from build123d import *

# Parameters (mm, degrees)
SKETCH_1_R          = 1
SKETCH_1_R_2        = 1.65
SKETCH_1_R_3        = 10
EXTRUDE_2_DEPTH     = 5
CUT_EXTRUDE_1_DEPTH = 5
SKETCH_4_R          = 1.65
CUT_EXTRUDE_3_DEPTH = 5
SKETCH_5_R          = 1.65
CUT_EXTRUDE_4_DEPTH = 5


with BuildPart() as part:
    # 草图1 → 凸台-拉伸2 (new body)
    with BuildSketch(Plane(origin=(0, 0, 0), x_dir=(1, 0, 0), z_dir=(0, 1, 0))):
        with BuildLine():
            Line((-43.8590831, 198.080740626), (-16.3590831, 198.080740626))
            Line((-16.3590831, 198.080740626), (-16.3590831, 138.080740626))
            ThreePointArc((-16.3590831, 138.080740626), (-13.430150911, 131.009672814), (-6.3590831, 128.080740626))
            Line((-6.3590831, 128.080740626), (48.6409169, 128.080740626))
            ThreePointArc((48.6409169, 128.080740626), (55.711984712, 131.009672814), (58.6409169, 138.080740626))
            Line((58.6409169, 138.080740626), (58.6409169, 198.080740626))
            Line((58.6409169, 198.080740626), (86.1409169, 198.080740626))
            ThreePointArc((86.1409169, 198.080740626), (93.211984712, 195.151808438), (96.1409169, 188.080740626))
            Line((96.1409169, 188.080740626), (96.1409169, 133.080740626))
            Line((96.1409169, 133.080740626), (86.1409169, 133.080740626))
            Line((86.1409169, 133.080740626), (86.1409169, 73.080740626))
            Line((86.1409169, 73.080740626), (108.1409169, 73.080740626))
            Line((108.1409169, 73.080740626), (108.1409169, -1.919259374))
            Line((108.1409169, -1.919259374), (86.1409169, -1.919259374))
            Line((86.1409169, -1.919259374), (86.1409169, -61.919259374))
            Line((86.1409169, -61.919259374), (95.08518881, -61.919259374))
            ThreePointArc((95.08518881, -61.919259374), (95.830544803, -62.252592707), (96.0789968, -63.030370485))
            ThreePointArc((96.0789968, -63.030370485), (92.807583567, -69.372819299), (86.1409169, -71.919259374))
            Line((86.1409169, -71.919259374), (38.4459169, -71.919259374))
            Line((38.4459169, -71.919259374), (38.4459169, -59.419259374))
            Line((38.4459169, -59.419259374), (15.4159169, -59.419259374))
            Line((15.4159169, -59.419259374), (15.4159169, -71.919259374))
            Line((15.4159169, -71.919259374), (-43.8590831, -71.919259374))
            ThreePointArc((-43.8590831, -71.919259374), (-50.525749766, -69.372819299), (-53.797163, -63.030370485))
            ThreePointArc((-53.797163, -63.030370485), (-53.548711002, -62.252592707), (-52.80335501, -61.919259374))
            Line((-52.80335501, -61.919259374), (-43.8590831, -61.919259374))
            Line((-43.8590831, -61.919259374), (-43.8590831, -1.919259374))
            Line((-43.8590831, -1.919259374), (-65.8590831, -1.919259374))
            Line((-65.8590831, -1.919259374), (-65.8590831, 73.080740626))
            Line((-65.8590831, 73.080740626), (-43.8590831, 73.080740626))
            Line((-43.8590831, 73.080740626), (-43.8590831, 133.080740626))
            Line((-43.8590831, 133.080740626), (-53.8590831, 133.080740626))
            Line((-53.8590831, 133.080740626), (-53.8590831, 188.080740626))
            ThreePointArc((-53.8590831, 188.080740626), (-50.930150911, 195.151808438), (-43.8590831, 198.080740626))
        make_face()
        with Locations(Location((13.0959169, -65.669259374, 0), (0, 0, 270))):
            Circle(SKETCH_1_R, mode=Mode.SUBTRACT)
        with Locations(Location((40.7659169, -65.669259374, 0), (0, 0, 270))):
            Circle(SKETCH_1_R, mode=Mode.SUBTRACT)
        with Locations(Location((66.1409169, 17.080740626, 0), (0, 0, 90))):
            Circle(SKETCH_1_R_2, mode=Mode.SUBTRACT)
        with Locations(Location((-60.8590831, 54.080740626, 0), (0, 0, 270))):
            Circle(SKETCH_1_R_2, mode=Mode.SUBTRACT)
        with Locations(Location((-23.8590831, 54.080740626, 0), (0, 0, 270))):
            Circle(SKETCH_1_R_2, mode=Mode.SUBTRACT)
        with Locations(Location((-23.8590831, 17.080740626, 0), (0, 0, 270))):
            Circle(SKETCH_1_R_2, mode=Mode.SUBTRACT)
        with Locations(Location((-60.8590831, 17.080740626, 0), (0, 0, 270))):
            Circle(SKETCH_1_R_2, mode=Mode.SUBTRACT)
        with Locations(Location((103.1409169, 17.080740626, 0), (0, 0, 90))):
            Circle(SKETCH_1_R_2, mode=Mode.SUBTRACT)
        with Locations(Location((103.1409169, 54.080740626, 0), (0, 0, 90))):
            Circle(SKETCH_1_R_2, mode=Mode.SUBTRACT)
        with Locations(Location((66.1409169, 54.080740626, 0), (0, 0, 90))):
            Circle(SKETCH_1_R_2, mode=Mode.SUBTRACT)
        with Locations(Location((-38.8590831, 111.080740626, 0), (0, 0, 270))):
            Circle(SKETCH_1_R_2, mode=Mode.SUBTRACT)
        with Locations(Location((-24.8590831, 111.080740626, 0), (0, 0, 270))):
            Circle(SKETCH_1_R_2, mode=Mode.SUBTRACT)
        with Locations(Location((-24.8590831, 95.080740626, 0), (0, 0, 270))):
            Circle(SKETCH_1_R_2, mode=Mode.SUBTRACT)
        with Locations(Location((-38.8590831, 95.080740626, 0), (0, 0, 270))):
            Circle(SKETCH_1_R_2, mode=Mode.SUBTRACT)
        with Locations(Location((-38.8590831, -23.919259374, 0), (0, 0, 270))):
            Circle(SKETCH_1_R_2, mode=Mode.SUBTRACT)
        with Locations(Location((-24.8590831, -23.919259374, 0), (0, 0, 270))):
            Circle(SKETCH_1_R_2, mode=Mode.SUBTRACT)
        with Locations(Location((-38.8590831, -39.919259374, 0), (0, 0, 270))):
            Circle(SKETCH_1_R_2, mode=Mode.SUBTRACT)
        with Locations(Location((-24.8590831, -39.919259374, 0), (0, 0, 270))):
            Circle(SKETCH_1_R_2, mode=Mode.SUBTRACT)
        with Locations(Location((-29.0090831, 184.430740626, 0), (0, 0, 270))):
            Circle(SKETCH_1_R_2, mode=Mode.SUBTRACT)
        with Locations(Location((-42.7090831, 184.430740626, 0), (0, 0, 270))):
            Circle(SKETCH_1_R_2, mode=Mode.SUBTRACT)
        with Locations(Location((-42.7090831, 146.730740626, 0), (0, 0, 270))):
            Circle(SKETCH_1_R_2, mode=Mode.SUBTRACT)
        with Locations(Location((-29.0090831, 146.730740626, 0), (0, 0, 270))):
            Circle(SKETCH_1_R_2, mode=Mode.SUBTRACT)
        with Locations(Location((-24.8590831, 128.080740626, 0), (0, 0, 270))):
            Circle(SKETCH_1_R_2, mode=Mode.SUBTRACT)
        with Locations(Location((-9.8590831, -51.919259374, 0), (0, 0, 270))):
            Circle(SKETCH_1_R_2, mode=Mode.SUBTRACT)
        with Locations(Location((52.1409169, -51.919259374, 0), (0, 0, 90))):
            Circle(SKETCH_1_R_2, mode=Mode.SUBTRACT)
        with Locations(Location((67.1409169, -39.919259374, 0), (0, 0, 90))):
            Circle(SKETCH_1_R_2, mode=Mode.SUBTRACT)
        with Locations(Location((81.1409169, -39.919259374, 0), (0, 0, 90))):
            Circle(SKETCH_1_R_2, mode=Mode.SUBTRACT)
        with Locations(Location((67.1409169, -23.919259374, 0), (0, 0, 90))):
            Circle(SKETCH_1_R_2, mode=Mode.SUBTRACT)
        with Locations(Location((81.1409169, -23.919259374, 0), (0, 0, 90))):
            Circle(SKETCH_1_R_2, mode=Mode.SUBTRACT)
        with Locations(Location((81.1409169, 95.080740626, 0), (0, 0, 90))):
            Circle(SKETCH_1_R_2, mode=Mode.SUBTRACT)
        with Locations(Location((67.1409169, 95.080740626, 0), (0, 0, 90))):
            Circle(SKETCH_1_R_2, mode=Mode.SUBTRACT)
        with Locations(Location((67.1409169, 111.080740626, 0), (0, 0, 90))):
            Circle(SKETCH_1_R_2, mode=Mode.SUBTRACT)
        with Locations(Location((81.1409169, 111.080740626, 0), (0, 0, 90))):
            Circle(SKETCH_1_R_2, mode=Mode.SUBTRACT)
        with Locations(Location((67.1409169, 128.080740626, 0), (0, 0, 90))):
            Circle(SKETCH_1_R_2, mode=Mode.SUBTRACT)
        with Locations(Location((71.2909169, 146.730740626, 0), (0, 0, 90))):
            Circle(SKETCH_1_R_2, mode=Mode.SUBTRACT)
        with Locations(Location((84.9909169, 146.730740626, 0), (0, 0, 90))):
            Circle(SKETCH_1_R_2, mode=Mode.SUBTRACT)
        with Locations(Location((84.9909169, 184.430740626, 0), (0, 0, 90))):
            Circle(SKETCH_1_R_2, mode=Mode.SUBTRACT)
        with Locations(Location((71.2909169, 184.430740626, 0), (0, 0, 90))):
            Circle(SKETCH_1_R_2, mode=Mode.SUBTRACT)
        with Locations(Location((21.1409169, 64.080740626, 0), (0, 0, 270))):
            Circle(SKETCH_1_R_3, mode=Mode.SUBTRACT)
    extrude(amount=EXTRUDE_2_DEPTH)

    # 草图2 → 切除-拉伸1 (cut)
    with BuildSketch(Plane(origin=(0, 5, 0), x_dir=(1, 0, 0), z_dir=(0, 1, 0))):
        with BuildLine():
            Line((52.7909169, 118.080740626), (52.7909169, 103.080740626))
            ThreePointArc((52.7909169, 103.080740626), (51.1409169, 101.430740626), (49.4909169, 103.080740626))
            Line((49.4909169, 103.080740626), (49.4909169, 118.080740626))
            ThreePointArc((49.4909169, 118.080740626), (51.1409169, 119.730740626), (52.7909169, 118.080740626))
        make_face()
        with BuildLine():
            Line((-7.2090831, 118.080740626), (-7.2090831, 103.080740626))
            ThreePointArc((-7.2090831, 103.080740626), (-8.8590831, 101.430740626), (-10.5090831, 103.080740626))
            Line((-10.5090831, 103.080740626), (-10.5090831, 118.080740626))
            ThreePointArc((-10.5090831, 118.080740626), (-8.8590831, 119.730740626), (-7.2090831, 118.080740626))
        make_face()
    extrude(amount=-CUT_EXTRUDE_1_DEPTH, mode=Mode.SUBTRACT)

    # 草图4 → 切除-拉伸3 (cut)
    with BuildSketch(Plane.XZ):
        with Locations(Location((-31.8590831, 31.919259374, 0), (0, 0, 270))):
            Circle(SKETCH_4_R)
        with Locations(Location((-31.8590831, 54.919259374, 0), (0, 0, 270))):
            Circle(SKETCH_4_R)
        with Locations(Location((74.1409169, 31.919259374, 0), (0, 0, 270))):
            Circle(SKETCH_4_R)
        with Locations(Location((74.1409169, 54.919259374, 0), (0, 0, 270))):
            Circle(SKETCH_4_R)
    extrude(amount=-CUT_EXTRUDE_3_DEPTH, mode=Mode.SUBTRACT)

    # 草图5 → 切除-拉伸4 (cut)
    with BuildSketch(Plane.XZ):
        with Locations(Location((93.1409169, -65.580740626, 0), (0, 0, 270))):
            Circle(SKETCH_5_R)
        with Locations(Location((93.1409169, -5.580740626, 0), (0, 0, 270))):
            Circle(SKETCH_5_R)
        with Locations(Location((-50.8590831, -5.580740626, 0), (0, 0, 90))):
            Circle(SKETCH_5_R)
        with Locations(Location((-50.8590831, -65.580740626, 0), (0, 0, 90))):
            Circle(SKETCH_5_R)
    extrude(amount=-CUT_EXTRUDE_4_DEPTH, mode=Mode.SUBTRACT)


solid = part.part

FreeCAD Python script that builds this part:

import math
import FreeCAD as App
import Part
import Sketcher
from FreeCAD import Vector

doc = App.newDocument("Part")
body = doc.addObject("PartDesign::Body", "Body")

# Sketch on XZ plane
sketch1 = body.newObject("Sketcher::SketchObject", "Sketch")
sketch1.AttachmentSupport = (doc.getObject("XZ_Plane"), [""])
sketch1.MapMode = "FlatFace"
sketch1.addGeometry([
    Part.LineSegment(Vector(-16.4, -198.1, 0), Vector(-43.9, -198.1, 0)),  # 0
    Part.ArcOfCircle(Part.Circle(Vector(-43.9, -188.1, 0), Vector(0, 0, 1), 10), math.radians(-180), math.radians(-90)),  # 1
    Part.LineSegment(Vector(-53.9, -188.1, 0), Vector(-53.9, -133.1, 0)),  # 2
    Part.LineSegment(Vector(-53.9, -133.1, 0), Vector(-43.9, -133.1, 0)),  # 3
    Part.LineSegment(Vector(-43.9, -133.1, 0), Vector(-43.9, -73.1, 0)),  # 4
    Part.LineSegment(Vector(-43.9, -73.1, 0), Vector(-65.9, -73.1, 0)),  # 5
    Part.LineSegment(Vector(-65.9, -73.1, 0), Vector(-65.9, 1.9, 0)),  # 6
    Part.LineSegment(Vector(-65.9, 1.9, 0), Vector(-43.9, 1.9, 0)),  # 7
    Part.LineSegment(Vector(-43.9, 1.9, 0), Vector(-43.9, 61.9, 0)),  # 8
    Part.LineSegment(Vector(-43.9, 61.9, 0), Vector(-52.8, 61.9, 0)),  # 9
    Part.ArcOfCircle(Part.Circle(Vector(-52.8, 62.9, 0), Vector(0, 0, 1), 1), math.radians(174), math.radians(270)),  # 10
    Part.ArcOfCircle(Part.Circle(Vector(-43.9, 61.9, 0), Vector(0, 0, 1), 10), math.radians(90), math.radians(174)),  # 11
    Part.LineSegment(Vector(-43.9, 71.9, 0), Vector(15.4, 71.9, 0)),  # 12
    Part.LineSegment(Vector(15.4, 71.9, 0), Vector(15.4, 59.4, 0)),  # 13
    Part.LineSegment(Vector(15.4, 59.4, 0), Vector(38.4, 59.4, 0)),  # 14
    Part.LineSegment(Vector(38.4, 59.4, 0), Vector(38.4, 71.9, 0)),  # 15
    Part.LineSegment(Vector(38.4, 71.9, 0), Vector(86.1, 71.9, 0)),  # 16
    Part.ArcOfCircle(Part.Circle(Vector(86.1, 61.9, 0), Vector(0, 0, 1), 10), math.radians(6), math.radians(90)),  # 17
    Part.ArcOfCircle(Part.Circle(Vector(95.1, 62.9, 0), Vector(0, 0, 1), 1), math.radians(-90), math.radians(6)),  # 18
    Part.LineSegment(Vector(95.1, 61.9, 0), Vector(86.1, 61.9, 0)),  # 19
    Part.LineSegment(Vector(86.1, 61.9, 0), Vector(86.1, 1.9, 0)),  # 20
    Part.LineSegment(Vector(86.1, 1.9, 0), Vector(108.1, 1.9, 0)),  # 21
    Part.LineSegment(Vector(108.1, 1.9, 0), Vector(108.1, -73.1, 0)),  # 22
    Part.LineSegment(Vector(108.1, -73.1, 0), Vector(86.1, -73.1, 0)),  # 23
    Part.LineSegment(Vector(86.1, -73.1, 0), Vector(86.1, -133.1, 0)),  # 24
    Part.LineSegment(Vector(86.1, -133.1, 0), Vector(96.1, -133.1, 0)),  # 25
    Part.LineSegment(Vector(96.1, -133.1, 0), Vector(96.1, -188.1, 0)),  # 26
    Part.ArcOfCircle(Part.Circle(Vector(86.1, -188.1, 0), Vector(0, 0, 1), 10), math.radians(-90), math.radians(0)),  # 27
    Part.LineSegment(Vector(86.1, -198.1, 0), Vector(58.6, -198.1, 0)),  # 28
    Part.LineSegment(Vector(58.6, -198.1, 0), Vector(58.6, -138.1, 0)),  # 29
    Part.ArcOfCircle(Part.Circle(Vector(48.6, -138.1, 0), Vector(0, 0, 1), 10), math.radians(0), math.radians(90)),  # 30
    Part.LineSegment(Vector(48.6, -128.1, 0), Vector(-6.4, -128.1, 0)),  # 31
    Part.ArcOfCircle(Part.Circle(Vector(-6.4, -138.1, 0), Vector(0, 0, 1), 10), math.radians(90), math.radians(180)),  # 32
    Part.LineSegment(Vector(-16.4, -138.1, 0), Vector(-16.4, -198.1, 0)),  # 33
    Part.Circle(Vector(81.1, 39.9, 0), Vector(0, 0, 1), 1.6),  # 34
    Part.Circle(Vector(67.1, 39.9, 0), Vector(0, 0, 1), 1.6),  # 35
    Part.Circle(Vector(81.1, 23.9, 0), Vector(0, 0, 1), 1.6),  # 36
    Part.Circle(Vector(67.1, 23.9, 0), Vector(0, 0, 1), 1.6),  # 37
    Part.Circle(Vector(52.1, 51.9, 0), Vector(0, 0, 1), 1.6),  # 38
    Part.Circle(Vector(40.8, 65.7, 0), Vector(0, 0, 1), 1),  # 39
    Part.Circle(Vector(103.1, -17.1, 0), Vector(0, 0, 1), 1.6),  # 40
    Part.Circle(Vector(66.1, -17.1, 0), Vector(0, 0, 1), 1.6),  # 41
    Part.Circle(Vector(103.1, -54.1, 0), Vector(0, 0, 1), 1.6),  # 42
    Part.Circle(Vector(66.1, -54.1, 0), Vector(0, 0, 1), 1.6),  # 43
    Part.Circle(Vector(13.1, 65.7, 0), Vector(0, 0, 1), 1),  # 44
    Part.Circle(Vector(-9.9, 51.9, 0), Vector(0, 0, 1), 1.6),  # 45
    Part.Circle(Vector(-24.9, 39.9, 0), Vector(0, 0, 1), 1.6),  # 46
    Part.Circle(Vector(-38.9, 39.9, 0), Vector(0, 0, 1), 1.6),  # 47
    Part.Circle(Vector(-24.9, 23.9, 0), Vector(0, 0, 1), 1.6),  # 48
    Part.Circle(Vector(-38.9, 23.9, 0), Vector(0, 0, 1), 1.6),  # 49
    Part.Circle(Vector(-23.9, -17.1, 0), Vector(0, 0, 1), 1.6),  # 50
    Part.Circle(Vector(-60.9, -17.1, 0), Vector(0, 0, 1), 1.6),  # 51
    Part.Circle(Vector(-23.9, -54.1, 0), Vector(0, 0, 1), 1.6),  # 52
    Part.Circle(Vector(-60.9, -54.1, 0), Vector(0, 0, 1), 1.6),  # 53
    Part.Circle(Vector(81.1, -95.1, 0), Vector(0, 0, 1), 1.6),  # 54
    Part.Circle(Vector(67.1, -95.1, 0), Vector(0, 0, 1), 1.6),  # 55
    Part.Circle(Vector(81.1, -111.1, 0), Vector(0, 0, 1), 1.6),  # 56
    Part.Circle(Vector(67.1, -111.1, 0), Vector(0, 0, 1), 1.6),  # 57
    Part.Circle(Vector(21.1, -64.1, 0), Vector(0, 0, 1), 10),  # 58
    Part.Circle(Vector(85, -146.7, 0), Vector(0, 0, 1), 1.6),  # 59
    Part.Circle(Vector(67.1, -128.1, 0), Vector(0, 0, 1), 1.6),  # 60
    Part.Circle(Vector(71.3, -146.7, 0), Vector(0, 0, 1), 1.6),  # 61
    Part.Circle(Vector(85, -184.4, 0), Vector(0, 0, 1), 1.6),  # 62
    Part.Circle(Vector(71.3, -184.4, 0), Vector(0, 0, 1), 1.6),  # 63
    Part.Circle(Vector(-24.9, -95.1, 0), Vector(0, 0, 1), 1.6),  # 64
    Part.Circle(Vector(-38.9, -95.1, 0), Vector(0, 0, 1), 1.6),  # 65
    Part.Circle(Vector(-24.9, -111.1, 0), Vector(0, 0, 1), 1.6),  # 66
    Part.Circle(Vector(-38.9, -111.1, 0), Vector(0, 0, 1), 1.6),  # 67
    Part.Circle(Vector(-24.9, -128.1, 0), Vector(0, 0, 1), 1.6),  # 68
    Part.Circle(Vector(-29, -146.7, 0), Vector(0, 0, 1), 1.6),  # 69
    Part.Circle(Vector(-42.7, -146.7, 0), Vector(0, 0, 1), 1.6),  # 70
    Part.Circle(Vector(-29, -184.4, 0), Vector(0, 0, 1), 1.6),  # 71
    Part.Circle(Vector(-42.7, -184.4, 0), Vector(0, 0, 1), 1.6),  # 72
], False)
sketch1.addConstraint([
    Sketcher.Constraint("Tangent", 0, 2, 1, 2),
    Sketcher.Constraint("Tangent", 1, 1, 2, 1),
    Sketcher.Constraint("Coincident", 2, 2, 3, 1),
    Sketcher.Constraint("Coincident", 3, 2, 4, 1),
    Sketcher.Constraint("Coincident", 4, 2, 5, 1),
    Sketcher.Constraint("Coincident", 5, 2, 6, 1),
    Sketcher.Constraint("Coincident", 6, 2, 7, 1),
    Sketcher.Constraint("Coincident", 7, 2, 8, 1),
    Sketcher.Constraint("Coincident", 8, 2, 9, 1),
    Sketcher.Constraint("Tangent", 9, 2, 10, 2),
    Sketcher.Constraint("Tangent", 10, 1, 11, 2),
    Sketcher.Constraint("Tangent", 11, 1, 12, 1),
    Sketcher.Constraint("Coincident", 12, 2, 13, 1),
    Sketcher.Constraint("Coincident", 13, 2, 14, 1),
    Sketcher.Constraint("Coincident", 14, 2, 15, 1),
    Sketcher.Constraint("Coincident", 15, 2, 16, 1),
    Sketcher.Constraint("Tangent", 16, 2, 17, 2),
    Sketcher.Constraint("Tangent", 17, 1, 18, 2),
    Sketcher.Constraint("Tangent", 18, 1, 19, 1),
    Sketcher.Constraint("Coincident", 19, 2, 20, 1),
    Sketcher.Constraint("Coincident", 20, 2, 21, 1),
    Sketcher.Constraint("Coincident", 21, 2, 22, 1),
    Sketcher.Constraint("Coincident", 22, 2, 23, 1),
    Sketcher.Constraint("Coincident", 23, 2, 24, 1),
    Sketcher.Constraint("Coincident", 24, 2, 25, 1),
    Sketcher.Constraint("Coincident", 25, 2, 26, 1),
    Sketcher.Constraint("Tangent", 26, 2, 27, 2),
    Sketcher.Constraint("Tangent", 27, 1, 28, 1),
    Sketcher.Constraint("Coincident", 28, 2, 29, 1),
    Sketcher.Constraint("Tangent", 29, 2, 30, 1),
    Sketcher.Constraint("Tangent", 30, 2, 31, 1),
    Sketcher.Constraint("Tangent", 31, 2, 32, 1),
    Sketcher.Constraint("Tangent", 32, 2, 33, 1),
    Sketcher.Constraint("Coincident", 33, 2, 0, 1),
    Sketcher.Constraint("Horizontal", 0),
    Sketcher.Constraint("Vertical", 2),
    Sketcher.Constraint("Horizontal", 3),
    Sketcher.Constraint("Vertical", 4),
    Sketcher.Constraint("Horizontal", 5),
    Sketcher.Constraint("Vertical", 6),
    Sketcher.Constraint("Horizontal", 7),
    Sketcher.Constraint("Vertical", 8),
    Sketcher.Constraint("Horizontal", 9),
    Sketcher.Constraint("Horizontal", 12),
    Sketcher.Constraint("Vertical", 13),
    Sketcher.Constraint("Horizontal", 14),
    Sketcher.Constraint("Vertical", 15),
    Sketcher.Constraint("Horizontal", 16),
    Sketcher.Constraint("Horizontal", 19),
    Sketcher.Constraint("Vertical", 20),
    Sketcher.Constraint("Horizontal", 21),
    Sketcher.Constraint("Vertical", 22),
    Sketcher.Constraint("Horizontal", 23),
    Sketcher.Constraint("Vertical", 24),
    Sketcher.Constraint("Horizontal", 25),
    Sketcher.Constraint("Vertical", 26),
    Sketcher.Constraint("Horizontal", 28),
    Sketcher.Constraint("Vertical", 29),
    Sketcher.Constraint("Horizontal", 31),
    Sketcher.Constraint("Vertical", 33),
    Sketcher.Constraint("Coincident", 8, 2, 11, 3),
    Sketcher.Constraint("Coincident", 19, 2, 17, 3),
    Sketcher.Constraint("Equal", 1, 11),
    Sketcher.Constraint("Equal", 11, 17),
    Sketcher.Constraint("Equal", 10, 18),
    Sketcher.Constraint("Equal", 17, 27),
    Sketcher.Constraint("Equal", 27, 30),
    Sketcher.Constraint("Equal", 30, 32),
    Sketcher.Constraint("Equal", 34, 35),
    Sketcher.Constraint("Equal", 35, 36),
    Sketcher.Constraint("Equal", 36, 37),
    Sketcher.Constraint("Equal", 37, 38),
    Sketcher.Constraint("Equal", 18, 39),
    Sketcher.Constraint("Equal", 38, 40),
    Sketcher.Constraint("Equal", 40, 41),
    Sketcher.Constraint("Equal", 41, 42),
    Sketcher.Constraint("Equal", 42, 43),
    Sketcher.Constraint("Equal", 39, 44),
    Sketcher.Constraint("Equal", 43, 45),
    Sketcher.Constraint("Equal", 45, 46),
    Sketcher.Constraint("Equal", 46, 47),
    Sketcher.Constraint("Equal", 47, 48),
    Sketcher.Constraint("Equal", 48, 49),
    Sketcher.Constraint("Equal", 49, 50),
    Sketcher.Constraint("Equal", 50, 51),
    Sketcher.Constraint("Equal", 51, 52),
    Sketcher.Constraint("Equal", 52, 53),
    Sketcher.Constraint("Equal", 53, 54),
    Sketcher.Constraint("Equal", 54, 55),
    Sketcher.Constraint("Equal", 55, 56),
    Sketcher.Constraint("Equal", 56, 57),
    Sketcher.Constraint("Equal", 32, 58),
    Sketcher.Constraint("Equal", 57, 59),
    Sketcher.Constraint("Equal", 59, 60),
    Sketcher.Constraint("Equal", 60, 61),
    Sketcher.Constraint("Equal", 61, 62),
    Sketcher.Constraint("Equal", 62, 63),
    Sketcher.Constraint("Equal", 63, 64),
    Sketcher.Constraint("Equal", 64, 65),
    Sketcher.Constraint("Equal", 65, 66),
    Sketcher.Constraint("Equal", 66, 67),
    Sketcher.Constraint("Equal", 67, 68),
    Sketcher.Constraint("Equal", 68, 69),
    Sketcher.Constraint("Equal", 69, 70),
    Sketcher.Constraint("Equal", 70, 71),
    Sketcher.Constraint("Equal", 71, 72),
    Sketcher.Constraint("Horizontal", 11, 3, 17, 3),
    Sketcher.Constraint("Horizontal", 1, 3, 27, 3),
    Sketcher.Constraint("Horizontal", 34, 3, 35, 3),
    Sketcher.Constraint("Horizontal", 36, 3, 37, 3),
    Sketcher.Constraint("Horizontal", 40, 3, 41, 3),
    Sketcher.Constraint("Horizontal", 42, 3, 43, 3),
    Sketcher.Constraint("Horizontal", 39, 3, 44, 3),
    Sketcher.Constraint("Horizontal", 38, 3, 45, 3),
    Sketcher.Constraint("Horizontal", 35, 3, 46, 3),
    Sketcher.Constraint("Horizontal", 46, 3, 47, 3),
    Sketcher.Constraint("Horizontal", 37, 3, 48, 3),
    Sketcher.Constraint("Horizontal", 48, 3, 49, 3),
    Sketcher.Constraint("Horizontal", 41, 3, 50, 3),
    Sketcher.Constraint("Horizontal", 50, 3, 51, 3),
    Sketcher.Constraint("Horizontal", 43, 3, 52, 3),
    Sketcher.Constraint("Horizontal", 52, 3, 53, 3),
    Sketcher.Constraint("Horizontal", 54, 3, 55, 3),
    Sketcher.Constraint("Horizontal", 56, 3, 57, 3),
    Sketcher.Constraint("Horizontal", 59, 3, 61, 3),
    Sketcher.Constraint("Horizontal", 62, 3, 63, 3),
    Sketcher.Constraint("Horizontal", 55, 3, 64, 3),
    Sketcher.Constraint("Horizontal", 64, 3, 65, 3),
    Sketcher.Constraint("Horizontal", 57, 3, 66, 3),
    Sketcher.Constraint("Horizontal", 66, 3, 67, 3),
    Sketcher.Constraint("Horizontal", 60, 3, 68, 3),
    Sketcher.Constraint("Horizontal", 61, 3, 69, 3),
    Sketcher.Constraint("Horizontal", 69, 3, 70, 3),
    Sketcher.Constraint("Horizontal", 63, 3, 71, 3),
    Sketcher.Constraint("Horizontal", 71, 3, 72, 3),
    Sketcher.Constraint("Horizontal", 7, 2, 20, 2),
    Sketcher.Constraint("Horizontal", 5, 2, 22, 2),
    Sketcher.Constraint("Horizontal", 3, 2, 24, 2),
    Sketcher.Constraint("Horizontal", 68, 3, 30, 2),
    Sketcher.Constraint("Vertical", 1, 3, 11, 3),
    Sketcher.Constraint("Vertical", 17, 3, 27, 3),
    Sketcher.Constraint("Vertical", 34, 3, 36, 3),
    Sketcher.Constraint("Vertical", 35, 3, 37, 3),
    Sketcher.Constraint("Vertical", 40, 3, 42, 3),
    Sketcher.Constraint("Vertical", 41, 3, 43, 3),
    Sketcher.Constraint("Vertical", 46, 3, 48, 3),
    Sketcher.Constraint("Vertical", 47, 3, 49, 3),
    Sketcher.Constraint("Vertical", 50, 3, 52, 3),
    Sketcher.Constraint("Vertical", 51, 3, 53, 3),
    Sketcher.Constraint("Vertical", 36, 3, 54, 3),
    Sketcher.Constraint("Vertical", 37, 3, 55, 3),
    Sketcher.Constraint("Vertical", 54, 3, 56, 3),
    Sketcher.Constraint("Vertical", 55, 3, 57, 3),
    Sketcher.Constraint("Vertical", 57, 3, 60, 3),
    Sketcher.Constraint("Vertical", 59, 3, 62, 3),
    Sketcher.Constraint("Vertical", 61, 3, 63, 3),
    Sketcher.Constraint("Vertical", 48, 3, 64, 3),
    Sketcher.Constraint("Vertical", 49, 3, 65, 3),
    Sketcher.Constraint("Vertical", 64, 3, 66, 3),
    Sketcher.Constraint("Vertical", 65, 3, 67, 3),
    Sketcher.Constraint("Vertical", 66, 3, 68, 3),
    Sketcher.Constraint("Vertical", 69, 3, 71, 3),
    Sketcher.Constraint("Vertical", 70, 3, 72, 3),
    Sketcher.Constraint("Vertical", 0, 2, 3, 2),
    Sketcher.Constraint("Vertical", 20, 2, 23, 2),
    Sketcher.Constraint("Equal", 7, 21),
    Sketcher.Constraint("Equal", 0, 28),
    Sketcher.Constraint("Equal", 31, 2),
    Sketcher.Constraint("Equal", 4, 8),
    Sketcher.Constraint("Equal", 24, 29),
    Sketcher.Constraint("Diameter", 39, 2.0),
    Sketcher.Constraint("Diameter", 58, 20.0),
    Sketcher.Constraint("Diameter", 34, 3.3),
    Sketcher.Constraint("DistanceX", 5, 2, 5, 1, 22.0),
    Sketcher.Constraint("DistanceX", 31, 2, 31, 1, 55.0),
    Sketcher.Constraint("DistanceY", 4, 1, 4, 2, 60.0),
    Sketcher.Constraint("DistanceY", 6, 1, 6, 2, 75.0),
    Sketcher.Constraint("DistanceX", 0, 2, 0, 1, 27.5),
    Sketcher.Constraint("DistanceY", 13, 2, 13, 1, 12.5),
    Sketcher.Constraint("DistanceX", 14, 1, 14, 2, 23.03),
    Sketcher.Constraint("DistanceX", 12, 1, 12, 2, 59.275),
    Sketcher.Constraint("DistanceY", 1, 3, -1, 1, 188.080741),
    Sketcher.Constraint("DistanceX", -1, 1, 18, 3, 95.085189),
    Sketcher.Constraint("DistanceY", -1, 1, 34, 3, 39.919259),
    Sketcher.Constraint("DistanceY", -1, 1, 36, 3, 23.919259),
    Sketcher.Constraint("DistanceY", -1, 1, 38, 3, 51.919259),
    Sketcher.Constraint("DistanceY", -1, 1, 39, 3, 65.669259),
    Sketcher.Constraint("DistanceY", 40, 3, -1, 1, 17.080741),
    Sketcher.Constraint("DistanceY", 42, 3, -1, 1, 54.080741),
    Sketcher.Constraint("DistanceY", 54, 3, -1, 1, 95.080741),
    Sketcher.Constraint("DistanceY", 56, 3, -1, 1, 111.080741),
    Sketcher.Constraint("DistanceY", 58, 3, -1, 1, 64.080741),
    Sketcher.Constraint("DistanceY", 59, 3, -1, 1, 146.730741),
    Sketcher.Constraint("DistanceY", 62, 3, -1, 1, 184.430741),
    Sketcher.Constraint("DistanceX", -1, 1, 34, 3, 81.140917),
    Sketcher.Constraint("DistanceX", -1, 1, 35, 3, 67.140917),
    Sketcher.Constraint("DistanceX", -1, 1, 38, 3, 52.140917),
    Sketcher.Constraint("DistanceX", -1, 1, 39, 3, 40.765917),
    Sketcher.Constraint("DistanceX", -1, 1, 40, 3, 103.140917),
    Sketcher.Constraint("DistanceX", -1, 1, 41, 3, 66.140917),
    Sketcher.Constraint("DistanceX", -1, 1, 44, 3, 13.095917),
    Sketcher.Constraint("DistanceX", 45, 3, -1, 1, 9.859083),
    Sketcher.Constraint("DistanceX", 46, 3, -1, 1, 24.859083),
    Sketcher.Constraint("DistanceX", 47, 3, -1, 1, 38.859083),
    Sketcher.Constraint("DistanceX", 50, 3, -1, 1, 23.859083),
    Sketcher.Constraint("DistanceX", 51, 3, -1, 1, 60.859083),
    Sketcher.Constraint("DistanceX", -1, 1, 58, 3, 21.140917),
    Sketcher.Constraint("DistanceX", -1, 1, 59, 3, 84.990917),
    Sketcher.Constraint("DistanceX", -1, 1, 61, 3, 71.290917),
    Sketcher.Constraint("DistanceX", 69, 3, -1, 1, 29.009083),
    Sketcher.Constraint("DistanceX", 70, 3, -1, 1, 42.709083),
])
pad1 = body.newObject("PartDesign::Pad", "Pad")
pad1.Profile = sketch1
pad1.Length = 5
pad1.Reversed = True

# Sketch on XZ plane
sketch2 = body.newObject("Sketcher::SketchObject", "Sketch001")
sketch2.AttachmentSupport = (doc.getObject("XZ_Plane"), [""])
sketch2.MapMode = "FlatFace"
sketch2.AttachmentOffset = App.Placement(Vector(0, 0, -5), App.Rotation())
sketch2.addGeometry([
    Part.LineSegment(Vector(52.8, -103.1, 0), Vector(52.8, -118.1, 0)),  # 0
    Part.ArcOfCircle(Part.Circle(Vector(51.1, -118.1, 0), Vector(0, 0, 1), 1.6), math.radians(180), math.radians(360)),  # 1
    Part.LineSegment(Vector(49.5, -118.1, 0), Vector(49.5, -103.1, 0)),  # 2
    Part.ArcOfCircle(Part.Circle(Vector(51.1, -103.1, 0), Vector(0, 0, 1), 1.6), math.radians(0), math.radians(180)),  # 3
    Part.LineSegment(Vector(-7.2, -103.1, 0), Vector(-7.2, -118.1, 0)),  # 4
    Part.ArcOfCircle(Part.Circle(Vector(-8.9, -118.1, 0), Vector(0, 0, 1), 1.6), math.radians(180), math.radians(360)),  # 5
    Part.LineSegment(Vector(-10.5, -118.1, 0), Vector(-10.5, -103.1, 0)),  # 6
    Part.ArcOfCircle(Part.Circle(Vector(-8.9, -103.1, 0), Vector(0, 0, 1), 1.6), math.radians(0), math.radians(180)),  # 7
], False)
sketch2.addConstraint([
    Sketcher.Constraint("Tangent", 0, 2, 1, 2),
    Sketcher.Constraint("Tangent", 1, 1, 2, 1),
    Sketcher.Constraint("Tangent", 2, 2, 3, 2),
    Sketcher.Constraint("Tangent", 3, 1, 0, 1),
    Sketcher.Constraint("Tangent", 4, 2, 5, 2),
    Sketcher.Constraint("Tangent", 5, 1, 6, 1),
    Sketcher.Constraint("Tangent", 6, 2, 7, 2),
    Sketcher.Constraint("Tangent", 7, 1, 4, 1),
    Sketcher.Constraint("Vertical", 0),
    Sketcher.Constraint("Vertical", 2),
    Sketcher.Constraint("Vertical", 4),
    Sketcher.Constraint("Vertical", 6),
    Sketcher.Constraint("Equal", 3, 5),
    Sketcher.Constraint("Horizontal", 1, 3, 5, 3),
    Sketcher.Constraint("Horizontal", 3, 3, 7, 3),
    Sketcher.Constraint("DistanceY", 0, 2, 0, 1, 15.0),
    Sketcher.Constraint("Radius", 1, 1.65),
    Sketcher.Constraint("DistanceX", 5, 3, 1, 3, 60.0),
    Sketcher.Constraint("DistanceY", 1, 3, -1, 1, 118.080741),
    Sketcher.Constraint("DistanceX", -1, 1, 1, 3, 51.140917),
])
pocket1 = body.newObject("PartDesign::Pocket", "Pocket")
pocket1.Profile = sketch2
pocket1.Length = 5
pocket1.Reversed = True

# Sketch on XZ plane
sketch3 = body.newObject("Sketcher::SketchObject", "Sketch002")
sketch3.AttachmentSupport = (doc.getObject("XZ_Plane"), [""])
sketch3.MapMode = "FlatFace"
sketch3.addGeometry([
    Part.Circle(Vector(-31.9, 31.9, 0), Vector(0, 0, 1), 1.6),
    Part.Circle(Vector(-31.9, 54.9, 0), Vector(0, 0, 1), 1.6),
    Part.Circle(Vector(74.1, 31.9, 0), Vector(0, 0, 1), 1.6),
    Part.Circle(Vector(74.1, 54.9, 0), Vector(0, 0, 1), 1.6),
], False)
sketch3.addConstraint([
    Sketcher.Constraint("Equal", 0, 1),
    Sketcher.Constraint("Equal", 1, 2),
    Sketcher.Constraint("Equal", 2, 3),
    Sketcher.Constraint("Horizontal", 0, 3, 2, 3),
    Sketcher.Constraint("Horizontal", 1, 3, 3, 3),
    Sketcher.Constraint("Vertical", 0, 3, 1, 3),
    Sketcher.Constraint("Vertical", 2, 3, 3, 3),
    Sketcher.Constraint("Diameter", 0, 3.3),
    Sketcher.Constraint("DistanceY", 0, 3, 1, 3, 23.0),
    Sketcher.Constraint("DistanceX", 0, 3, 2, 3, 106.0),
    Sketcher.Constraint("DistanceY", -1, 1, 0, 3, 31.919259),
    Sketcher.Constraint("DistanceX", 0, 3, -1, 1, 31.859083),
])
pocket2 = body.newObject("PartDesign::Pocket", "Pocket001")
pocket2.Profile = sketch3
pocket2.Length = 5

# Sketch on XZ plane
sketch4 = body.newObject("Sketcher::SketchObject", "Sketch003")
sketch4.AttachmentSupport = (doc.getObject("XZ_Plane"), [""])
sketch4.MapMode = "FlatFace"
sketch4.addGeometry([
    Part.Circle(Vector(93.1, -65.6, 0), Vector(0, 0, 1), 1.6),
    Part.Circle(Vector(93.1, -5.6, 0), Vector(0, 0, 1), 1.6),
    Part.Circle(Vector(-50.9, -5.6, 0), Vector(0, 0, 1), 1.6),
    Part.Circle(Vector(-50.9, -65.6, 0), Vector(0, 0, 1), 1.6),
], False)
sketch4.addConstraint([
    Sketcher.Constraint("Equal", 0, 1),
    Sketcher.Constraint("Equal", 1, 2),
    Sketcher.Constraint("Equal", 2, 3),
    Sketcher.Constraint("Horizontal", 1, 3, 2, 3),
    Sketcher.Constraint("Horizontal", 0, 3, 3, 3),
    Sketcher.Constraint("Vertical", 0, 3, 1, 3),
    Sketcher.Constraint("Vertical", 2, 3, 3, 3),
    Sketcher.Constraint("Diameter", 0, 3.3),
    Sketcher.Constraint("DistanceY", 0, 3, 1, 3, 60.0),
    Sketcher.Constraint("DistanceX", 2, 3, 1, 3, 144.0),
    Sketcher.Constraint("DistanceY", 0, 3, -1, 1, 65.580741),
    Sketcher.Constraint("DistanceX", -1, 1, 0, 3, 93.140917),
])
pocket3 = body.newObject("PartDesign::Pocket", "Pocket002")
pocket3.Profile = sketch4
pocket3.Length = 5

doc.recompute()
